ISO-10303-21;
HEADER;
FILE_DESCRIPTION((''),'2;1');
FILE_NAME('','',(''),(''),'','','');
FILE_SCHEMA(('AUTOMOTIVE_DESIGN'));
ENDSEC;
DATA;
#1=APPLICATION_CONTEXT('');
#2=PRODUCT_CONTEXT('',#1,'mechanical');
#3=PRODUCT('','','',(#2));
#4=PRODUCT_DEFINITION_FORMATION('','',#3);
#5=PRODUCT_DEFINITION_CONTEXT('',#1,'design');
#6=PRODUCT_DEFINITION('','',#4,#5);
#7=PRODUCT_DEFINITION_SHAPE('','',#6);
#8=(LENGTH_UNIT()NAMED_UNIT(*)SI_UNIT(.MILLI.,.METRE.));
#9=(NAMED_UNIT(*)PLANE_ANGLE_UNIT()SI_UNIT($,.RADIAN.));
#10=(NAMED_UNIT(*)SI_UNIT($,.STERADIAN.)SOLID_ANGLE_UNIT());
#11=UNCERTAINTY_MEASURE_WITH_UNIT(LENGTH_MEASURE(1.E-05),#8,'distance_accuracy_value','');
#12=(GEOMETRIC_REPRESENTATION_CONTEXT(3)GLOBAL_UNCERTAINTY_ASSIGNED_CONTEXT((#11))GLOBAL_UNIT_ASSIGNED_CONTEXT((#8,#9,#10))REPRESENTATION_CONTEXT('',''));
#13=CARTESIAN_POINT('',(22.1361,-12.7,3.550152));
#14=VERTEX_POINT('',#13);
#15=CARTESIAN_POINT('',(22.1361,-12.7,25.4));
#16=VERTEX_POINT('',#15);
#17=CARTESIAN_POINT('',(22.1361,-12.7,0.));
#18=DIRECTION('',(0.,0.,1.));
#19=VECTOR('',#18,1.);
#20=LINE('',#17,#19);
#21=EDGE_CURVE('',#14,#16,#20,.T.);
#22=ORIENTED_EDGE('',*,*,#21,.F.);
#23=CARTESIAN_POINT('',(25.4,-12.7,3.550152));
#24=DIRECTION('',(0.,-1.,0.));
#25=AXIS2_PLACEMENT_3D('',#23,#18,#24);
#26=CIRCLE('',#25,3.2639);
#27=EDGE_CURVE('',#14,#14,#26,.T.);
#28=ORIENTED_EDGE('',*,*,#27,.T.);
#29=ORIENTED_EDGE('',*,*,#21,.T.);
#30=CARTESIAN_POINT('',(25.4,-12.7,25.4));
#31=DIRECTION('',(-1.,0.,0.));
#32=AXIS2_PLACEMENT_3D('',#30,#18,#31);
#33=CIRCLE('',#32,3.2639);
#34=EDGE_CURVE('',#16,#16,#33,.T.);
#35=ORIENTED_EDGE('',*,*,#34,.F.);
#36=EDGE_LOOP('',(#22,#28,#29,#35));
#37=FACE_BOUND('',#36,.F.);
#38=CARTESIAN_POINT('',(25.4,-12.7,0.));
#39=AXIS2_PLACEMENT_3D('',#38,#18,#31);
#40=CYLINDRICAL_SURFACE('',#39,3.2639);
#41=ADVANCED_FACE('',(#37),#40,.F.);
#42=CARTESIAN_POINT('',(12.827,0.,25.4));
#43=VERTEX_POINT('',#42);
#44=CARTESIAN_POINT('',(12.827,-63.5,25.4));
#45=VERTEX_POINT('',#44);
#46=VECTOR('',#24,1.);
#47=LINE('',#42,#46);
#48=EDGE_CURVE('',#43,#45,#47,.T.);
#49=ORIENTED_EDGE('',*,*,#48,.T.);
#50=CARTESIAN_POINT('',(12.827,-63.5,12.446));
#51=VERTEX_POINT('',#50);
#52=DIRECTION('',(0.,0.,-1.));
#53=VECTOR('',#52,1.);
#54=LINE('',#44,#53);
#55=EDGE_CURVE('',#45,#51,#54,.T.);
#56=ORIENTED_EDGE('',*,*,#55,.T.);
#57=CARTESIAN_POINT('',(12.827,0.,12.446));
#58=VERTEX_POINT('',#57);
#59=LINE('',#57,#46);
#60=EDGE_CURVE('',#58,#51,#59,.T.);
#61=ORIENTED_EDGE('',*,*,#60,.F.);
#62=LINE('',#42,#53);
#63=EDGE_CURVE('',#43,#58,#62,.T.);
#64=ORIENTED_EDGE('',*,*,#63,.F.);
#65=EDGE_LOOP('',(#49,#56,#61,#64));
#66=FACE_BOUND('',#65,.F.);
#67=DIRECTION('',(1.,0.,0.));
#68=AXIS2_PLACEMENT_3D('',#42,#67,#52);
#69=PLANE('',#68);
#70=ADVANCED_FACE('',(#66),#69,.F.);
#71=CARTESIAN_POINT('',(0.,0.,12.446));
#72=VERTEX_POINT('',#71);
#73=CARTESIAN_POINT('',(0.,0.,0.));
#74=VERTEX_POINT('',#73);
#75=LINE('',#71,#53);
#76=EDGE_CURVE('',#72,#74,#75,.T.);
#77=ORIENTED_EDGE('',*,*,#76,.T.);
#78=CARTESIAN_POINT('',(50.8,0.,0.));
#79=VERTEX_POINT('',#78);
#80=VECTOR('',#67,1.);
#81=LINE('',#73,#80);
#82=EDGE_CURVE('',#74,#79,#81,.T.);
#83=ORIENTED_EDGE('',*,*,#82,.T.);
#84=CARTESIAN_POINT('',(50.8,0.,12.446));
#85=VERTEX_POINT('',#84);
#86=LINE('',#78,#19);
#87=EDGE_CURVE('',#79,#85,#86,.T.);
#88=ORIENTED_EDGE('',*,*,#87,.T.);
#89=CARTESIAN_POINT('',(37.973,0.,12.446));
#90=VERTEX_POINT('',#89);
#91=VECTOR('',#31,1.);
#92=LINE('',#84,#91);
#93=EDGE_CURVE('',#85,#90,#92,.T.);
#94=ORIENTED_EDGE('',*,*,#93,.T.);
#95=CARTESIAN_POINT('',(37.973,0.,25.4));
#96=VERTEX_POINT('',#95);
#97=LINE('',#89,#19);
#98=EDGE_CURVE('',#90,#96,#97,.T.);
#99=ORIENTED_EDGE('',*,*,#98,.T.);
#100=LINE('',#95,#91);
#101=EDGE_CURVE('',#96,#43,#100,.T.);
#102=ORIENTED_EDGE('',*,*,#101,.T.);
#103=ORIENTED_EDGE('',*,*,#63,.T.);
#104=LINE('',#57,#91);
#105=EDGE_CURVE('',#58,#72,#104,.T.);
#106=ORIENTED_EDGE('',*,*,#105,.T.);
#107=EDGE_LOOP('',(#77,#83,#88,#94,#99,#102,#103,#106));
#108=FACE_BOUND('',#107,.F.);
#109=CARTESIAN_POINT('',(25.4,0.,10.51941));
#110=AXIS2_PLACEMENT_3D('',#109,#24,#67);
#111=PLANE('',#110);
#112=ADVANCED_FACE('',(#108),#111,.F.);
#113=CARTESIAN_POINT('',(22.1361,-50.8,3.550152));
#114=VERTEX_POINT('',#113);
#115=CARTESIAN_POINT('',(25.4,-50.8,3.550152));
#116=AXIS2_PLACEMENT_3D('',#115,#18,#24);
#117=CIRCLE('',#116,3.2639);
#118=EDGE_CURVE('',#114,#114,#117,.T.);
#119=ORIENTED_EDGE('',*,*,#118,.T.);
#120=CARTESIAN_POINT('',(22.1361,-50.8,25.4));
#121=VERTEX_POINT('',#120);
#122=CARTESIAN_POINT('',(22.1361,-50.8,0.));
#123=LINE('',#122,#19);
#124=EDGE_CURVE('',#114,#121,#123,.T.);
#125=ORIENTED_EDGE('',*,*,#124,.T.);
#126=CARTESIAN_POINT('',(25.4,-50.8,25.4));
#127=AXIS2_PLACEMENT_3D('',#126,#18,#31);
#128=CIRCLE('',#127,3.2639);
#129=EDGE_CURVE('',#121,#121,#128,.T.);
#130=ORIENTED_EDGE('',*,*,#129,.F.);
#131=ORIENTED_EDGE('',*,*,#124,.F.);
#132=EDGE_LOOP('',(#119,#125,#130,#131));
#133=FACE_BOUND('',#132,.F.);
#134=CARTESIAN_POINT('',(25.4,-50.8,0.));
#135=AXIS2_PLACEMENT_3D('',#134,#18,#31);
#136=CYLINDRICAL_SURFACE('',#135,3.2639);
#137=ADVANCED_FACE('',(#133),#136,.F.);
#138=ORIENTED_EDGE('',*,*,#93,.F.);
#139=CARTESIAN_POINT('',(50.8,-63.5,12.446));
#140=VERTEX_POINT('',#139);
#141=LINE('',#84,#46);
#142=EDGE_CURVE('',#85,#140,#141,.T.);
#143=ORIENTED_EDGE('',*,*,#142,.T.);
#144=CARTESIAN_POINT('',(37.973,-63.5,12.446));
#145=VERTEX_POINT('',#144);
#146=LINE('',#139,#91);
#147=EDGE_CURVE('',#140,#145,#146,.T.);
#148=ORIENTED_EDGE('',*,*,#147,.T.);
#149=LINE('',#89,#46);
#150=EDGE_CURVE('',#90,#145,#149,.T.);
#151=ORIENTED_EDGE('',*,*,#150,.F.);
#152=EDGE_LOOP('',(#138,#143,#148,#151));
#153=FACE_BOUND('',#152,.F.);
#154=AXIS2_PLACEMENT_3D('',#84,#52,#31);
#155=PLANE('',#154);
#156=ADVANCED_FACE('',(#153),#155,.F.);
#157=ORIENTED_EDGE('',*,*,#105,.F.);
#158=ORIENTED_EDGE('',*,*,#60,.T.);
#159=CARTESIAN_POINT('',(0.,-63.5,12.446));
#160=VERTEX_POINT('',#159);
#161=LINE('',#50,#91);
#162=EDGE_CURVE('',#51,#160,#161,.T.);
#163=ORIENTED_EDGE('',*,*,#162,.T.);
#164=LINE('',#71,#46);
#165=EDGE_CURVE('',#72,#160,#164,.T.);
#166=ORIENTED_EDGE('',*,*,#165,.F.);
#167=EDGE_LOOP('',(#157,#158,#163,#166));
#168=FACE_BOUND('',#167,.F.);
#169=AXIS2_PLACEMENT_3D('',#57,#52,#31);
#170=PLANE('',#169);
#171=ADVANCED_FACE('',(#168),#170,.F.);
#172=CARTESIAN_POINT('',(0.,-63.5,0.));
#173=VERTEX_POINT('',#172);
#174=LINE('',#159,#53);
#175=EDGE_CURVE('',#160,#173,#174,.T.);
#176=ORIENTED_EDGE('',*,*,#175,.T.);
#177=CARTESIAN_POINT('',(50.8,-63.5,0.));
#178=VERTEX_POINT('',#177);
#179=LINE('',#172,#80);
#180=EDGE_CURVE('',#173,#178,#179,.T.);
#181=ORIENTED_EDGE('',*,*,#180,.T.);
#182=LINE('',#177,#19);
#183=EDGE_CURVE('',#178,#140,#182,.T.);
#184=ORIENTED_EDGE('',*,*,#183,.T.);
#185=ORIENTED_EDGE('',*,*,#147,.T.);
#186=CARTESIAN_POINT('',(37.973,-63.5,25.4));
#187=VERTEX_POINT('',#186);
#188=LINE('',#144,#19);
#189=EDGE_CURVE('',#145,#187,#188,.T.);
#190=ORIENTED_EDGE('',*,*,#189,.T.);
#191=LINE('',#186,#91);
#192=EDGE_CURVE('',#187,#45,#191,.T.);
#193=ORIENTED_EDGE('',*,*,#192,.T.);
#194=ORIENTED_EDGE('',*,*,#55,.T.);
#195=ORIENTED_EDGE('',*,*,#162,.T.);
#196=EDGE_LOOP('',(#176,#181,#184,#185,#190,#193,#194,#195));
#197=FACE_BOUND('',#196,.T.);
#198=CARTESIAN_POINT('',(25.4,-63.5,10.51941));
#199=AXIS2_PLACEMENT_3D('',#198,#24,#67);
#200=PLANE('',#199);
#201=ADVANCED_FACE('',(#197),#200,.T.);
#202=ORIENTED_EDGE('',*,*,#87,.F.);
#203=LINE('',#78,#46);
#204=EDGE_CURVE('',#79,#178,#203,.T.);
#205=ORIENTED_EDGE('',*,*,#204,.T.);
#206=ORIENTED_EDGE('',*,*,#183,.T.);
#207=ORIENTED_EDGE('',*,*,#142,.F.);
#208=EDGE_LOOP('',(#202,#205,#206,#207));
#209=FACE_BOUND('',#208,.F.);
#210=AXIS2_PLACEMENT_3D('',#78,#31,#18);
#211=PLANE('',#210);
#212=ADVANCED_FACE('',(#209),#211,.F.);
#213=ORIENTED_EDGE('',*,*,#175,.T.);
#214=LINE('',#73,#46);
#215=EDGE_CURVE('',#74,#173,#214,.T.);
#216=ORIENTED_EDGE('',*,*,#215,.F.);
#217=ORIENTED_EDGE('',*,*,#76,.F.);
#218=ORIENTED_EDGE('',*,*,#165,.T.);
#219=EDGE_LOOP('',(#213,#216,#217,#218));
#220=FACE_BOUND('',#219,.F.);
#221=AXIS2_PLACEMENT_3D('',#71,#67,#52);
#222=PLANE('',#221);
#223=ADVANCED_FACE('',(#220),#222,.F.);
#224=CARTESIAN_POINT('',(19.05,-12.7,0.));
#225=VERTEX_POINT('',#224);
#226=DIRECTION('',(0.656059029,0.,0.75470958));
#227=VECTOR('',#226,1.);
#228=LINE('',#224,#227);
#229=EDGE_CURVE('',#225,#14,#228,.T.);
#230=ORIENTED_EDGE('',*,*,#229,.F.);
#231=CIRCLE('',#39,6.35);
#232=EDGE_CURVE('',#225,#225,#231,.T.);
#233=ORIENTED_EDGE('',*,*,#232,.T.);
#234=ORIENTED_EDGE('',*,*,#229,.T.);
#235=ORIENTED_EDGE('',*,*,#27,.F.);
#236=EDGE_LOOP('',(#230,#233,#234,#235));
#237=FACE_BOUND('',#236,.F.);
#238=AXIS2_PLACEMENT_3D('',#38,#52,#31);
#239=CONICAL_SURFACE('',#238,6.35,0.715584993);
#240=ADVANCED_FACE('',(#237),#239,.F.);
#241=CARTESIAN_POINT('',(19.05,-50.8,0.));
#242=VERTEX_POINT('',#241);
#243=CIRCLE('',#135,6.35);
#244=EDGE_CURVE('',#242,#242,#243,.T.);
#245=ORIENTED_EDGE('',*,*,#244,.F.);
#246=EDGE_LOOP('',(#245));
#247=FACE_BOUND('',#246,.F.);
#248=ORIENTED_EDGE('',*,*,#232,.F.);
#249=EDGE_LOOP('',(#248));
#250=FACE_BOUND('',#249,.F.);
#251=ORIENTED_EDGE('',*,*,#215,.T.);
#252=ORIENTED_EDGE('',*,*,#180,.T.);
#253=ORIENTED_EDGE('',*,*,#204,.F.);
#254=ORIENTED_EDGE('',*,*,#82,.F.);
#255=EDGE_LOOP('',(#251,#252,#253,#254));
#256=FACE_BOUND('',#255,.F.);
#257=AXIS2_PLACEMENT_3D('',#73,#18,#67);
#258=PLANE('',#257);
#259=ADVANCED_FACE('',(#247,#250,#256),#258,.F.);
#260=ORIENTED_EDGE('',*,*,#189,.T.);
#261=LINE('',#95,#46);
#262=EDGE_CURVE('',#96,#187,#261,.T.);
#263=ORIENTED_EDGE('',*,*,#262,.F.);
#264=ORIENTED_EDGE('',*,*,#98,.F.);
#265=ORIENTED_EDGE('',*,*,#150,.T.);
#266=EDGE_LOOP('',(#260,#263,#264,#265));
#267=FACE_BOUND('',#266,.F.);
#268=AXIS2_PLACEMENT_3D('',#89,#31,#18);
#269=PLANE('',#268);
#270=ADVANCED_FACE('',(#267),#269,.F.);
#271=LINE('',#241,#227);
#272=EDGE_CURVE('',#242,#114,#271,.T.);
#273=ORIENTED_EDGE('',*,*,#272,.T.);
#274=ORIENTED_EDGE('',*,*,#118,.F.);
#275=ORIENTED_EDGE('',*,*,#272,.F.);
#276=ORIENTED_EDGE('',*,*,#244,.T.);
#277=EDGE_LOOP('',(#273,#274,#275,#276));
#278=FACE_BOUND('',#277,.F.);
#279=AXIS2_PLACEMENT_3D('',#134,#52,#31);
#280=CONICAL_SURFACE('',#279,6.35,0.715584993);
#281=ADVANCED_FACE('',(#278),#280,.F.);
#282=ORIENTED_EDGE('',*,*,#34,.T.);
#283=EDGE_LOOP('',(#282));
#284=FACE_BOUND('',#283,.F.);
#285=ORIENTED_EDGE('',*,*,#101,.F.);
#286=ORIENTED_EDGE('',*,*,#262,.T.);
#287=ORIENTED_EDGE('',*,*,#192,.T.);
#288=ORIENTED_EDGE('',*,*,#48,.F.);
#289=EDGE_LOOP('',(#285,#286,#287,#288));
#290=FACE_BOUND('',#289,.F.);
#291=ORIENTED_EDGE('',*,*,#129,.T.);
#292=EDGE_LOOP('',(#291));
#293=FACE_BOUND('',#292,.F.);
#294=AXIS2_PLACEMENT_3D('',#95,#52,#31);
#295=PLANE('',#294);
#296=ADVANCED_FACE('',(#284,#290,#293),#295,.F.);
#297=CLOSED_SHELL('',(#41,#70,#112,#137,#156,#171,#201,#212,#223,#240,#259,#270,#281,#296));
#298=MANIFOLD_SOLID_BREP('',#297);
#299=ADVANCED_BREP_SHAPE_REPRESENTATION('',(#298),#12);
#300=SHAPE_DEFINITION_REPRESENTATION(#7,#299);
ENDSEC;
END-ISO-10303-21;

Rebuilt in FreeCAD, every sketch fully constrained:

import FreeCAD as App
import Part
import Sketcher
Q = App.Units.Quantity

doc = App.newDocument("Part")
params = doc.addObject("Spreadsheet::Sheet", "Params")
for row, (alias, value) in enumerate([
    ("sketch1_width", "2 in"),
    ("sketch1_width2", "0.99 in"),
    ("sketch1_height", "0.49 in"),
    ("pad1_length", "2.5 in"),
    ("sketch2_diameter", "0.257 in"),
    ("hole_diameter", "0.257 in"),
    ("hole_csink_diameter", "0.5 in"),
], start=1):
    params.set(f"A{row}", alias)
    params.set(f"B{row}", "=" + value)
    params.setAlias(f"B{row}", alias)

body = doc.addObject("PartDesign::Body", "Body")

# Sketch on XZ plane
sketch1 = body.newObject("Sketcher::SketchObject", "Sketch")
sketch1.AttachmentSupport = (doc.getObject("XZ_Plane"), [""])
sketch1.MapMode = "FlatFace"
sketch1.addGeometry(Part.LineSegment(App.Vector(0, 12, 0), App.Vector(0, 0, 0)), False)
sketch1.addGeometry(Part.LineSegment(App.Vector(0, 0, 0), App.Vector(51, 0, 0)), False)
sketch1.addGeometry(Part.LineSegment(App.Vector(51, 0, 0), App.Vector(51, 12, 0)), False)
sketch1.addGeometry(Part.LineSegment(App.Vector(51, 12, 0), App.Vector(38, 12, 0)), False)
sketch1.addGeometry(Part.LineSegment(App.Vector(38, 12, 0), App.Vector(38, 25, 0)), False)
sketch1.addGeometry(Part.LineSegment(App.Vector(38, 25, 0), App.Vector(13, 25, 0)), False)
sketch1.addGeometry(Part.LineSegment(App.Vector(13, 25, 0), App.Vector(13, 12, 0)), False)
sketch1.addGeometry(Part.LineSegment(App.Vector(13, 12, 0), App.Vector(0, 12, 0)), False)
sketch1.addConstraint(Sketcher.Constraint("Coincident", 0, 2, 1, 1))
sketch1.addConstraint(Sketcher.Constraint("Coincident", 1, 2, 2, 1))
sketch1.addConstraint(Sketcher.Constraint("Coincident", 2, 2, 3, 1))
sketch1.addConstraint(Sketcher.Constraint("Coincident", 3, 2, 4, 1))
sketch1.addConstraint(Sketcher.Constraint("Coincident", 4, 2, 5, 1))
sketch1.addConstraint(Sketcher.Constraint("Coincident", 5, 2, 6, 1))
sketch1.addConstraint(Sketcher.Constraint("Coincident", 6, 2, 7, 1))
sketch1.addConstraint(Sketcher.Constraint("Coincident", 7, 2, 0, 1))
sketch1.addConstraint(Sketcher.Constraint("Vertical", 0))
sketch1.addConstraint(Sketcher.Constraint("Horizontal", 1))
sketch1.addConstraint(Sketcher.Constraint("Vertical", 2))
sketch1.addConstraint(Sketcher.Constraint("Horizontal", 3))
sketch1.addConstraint(Sketcher.Constraint("Vertical", 4))
sketch1.addConstraint(Sketcher.Constraint("Horizontal", 5))
sketch1.addConstraint(Sketcher.Constraint("Vertical", 6))
sketch1.addConstraint(Sketcher.Constraint("Horizontal", 7))
sketch1.addConstraint(Sketcher.Constraint("Coincident", 0, 2, -1, 1))
sketch1.addConstraint(Sketcher.Constraint("Horizontal", 3, 2, 6, 2))
sketch1.addConstraint(Sketcher.Constraint("Equal", 3, 7))
sketch1.addConstraint(Sketcher.Constraint("DistanceX", 1, 1, 1, 2, Q("2 in")))
sketch1.addConstraint(Sketcher.Constraint("DistanceY", -1, 1, 4, 2, Q("1 in")))
sketch1.addConstraint(Sketcher.Constraint("DistanceX", 5, 2, 5, 1, Q("0.99 in")))
sketch1.addConstraint(Sketcher.Constraint("DistanceY", 0, 2, 0, 1, Q("0.49 in")))
sketch1.setExpression("Constraints[19]", "Params.sketch1_width")
sketch1.setExpression("Constraints[21]", "Params.sketch1_width2")
sketch1.setExpression("Constraints[22]", "Params.sketch1_height")
pad1 = body.newObject("PartDesign::Pad", "Pad")
pad1.Profile = sketch1
pad1.setExpression("Length", "Params.pad1_length")

# Sketch on XY plane
sketch2 = body.newObject("Sketcher::SketchObject", "Sketch001")
sketch2.AttachmentSupport = (doc.getObject("XY_Plane"), [""])
sketch2.MapMode = "FlatFace"
sketch2.addGeometry(Part.Circle(App.Vector(25.4, -50.8, 0), App.Vector(0, 0, 1), 3.3), False)
sketch2.addGeometry(Part.Circle(App.Vector(25.4, -12.7, 0), App.Vector(0, 0, 1), 3.3), False)
sketch2.addConstraint(Sketcher.Constraint("Equal", 0, 1))
sketch2.addConstraint(Sketcher.Constraint("Vertical", 0, 3, 1, 3))
sketch2.addConstraint(Sketcher.Constraint("Diameter", 0, Q("0.257 in")))
sketch2.addConstraint(Sketcher.Constraint("DistanceX", -1, 1, 0, 3, Q("1 in")))
sketch2.addConstraint(Sketcher.Constraint("DistanceY", 0, 3, -1, 1, Q("2 in")))
sketch2.addConstraint(Sketcher.Constraint("DistanceY", 1, 3, -1, 1, Q("0.5 in")))
sketch2.setExpression("Constraints[2]", "Params.sketch2_diameter")
doc.recompute()
hole = body.newObject("PartDesign::Hole", "Hole")
hole.Profile = sketch2
hole.ThreadType = "None"
hole.setExpression("Diameter", "Params.hole_diameter")
hole.DepthType = "ThroughAll"
hole.HoleCutType = "Countersink"
hole.setExpression("HoleCutDiameter", "Params.hole_csink_diameter")
hole.HoleCutCountersinkAngle = 82
hole.Reversed = True

doc.recompute()
